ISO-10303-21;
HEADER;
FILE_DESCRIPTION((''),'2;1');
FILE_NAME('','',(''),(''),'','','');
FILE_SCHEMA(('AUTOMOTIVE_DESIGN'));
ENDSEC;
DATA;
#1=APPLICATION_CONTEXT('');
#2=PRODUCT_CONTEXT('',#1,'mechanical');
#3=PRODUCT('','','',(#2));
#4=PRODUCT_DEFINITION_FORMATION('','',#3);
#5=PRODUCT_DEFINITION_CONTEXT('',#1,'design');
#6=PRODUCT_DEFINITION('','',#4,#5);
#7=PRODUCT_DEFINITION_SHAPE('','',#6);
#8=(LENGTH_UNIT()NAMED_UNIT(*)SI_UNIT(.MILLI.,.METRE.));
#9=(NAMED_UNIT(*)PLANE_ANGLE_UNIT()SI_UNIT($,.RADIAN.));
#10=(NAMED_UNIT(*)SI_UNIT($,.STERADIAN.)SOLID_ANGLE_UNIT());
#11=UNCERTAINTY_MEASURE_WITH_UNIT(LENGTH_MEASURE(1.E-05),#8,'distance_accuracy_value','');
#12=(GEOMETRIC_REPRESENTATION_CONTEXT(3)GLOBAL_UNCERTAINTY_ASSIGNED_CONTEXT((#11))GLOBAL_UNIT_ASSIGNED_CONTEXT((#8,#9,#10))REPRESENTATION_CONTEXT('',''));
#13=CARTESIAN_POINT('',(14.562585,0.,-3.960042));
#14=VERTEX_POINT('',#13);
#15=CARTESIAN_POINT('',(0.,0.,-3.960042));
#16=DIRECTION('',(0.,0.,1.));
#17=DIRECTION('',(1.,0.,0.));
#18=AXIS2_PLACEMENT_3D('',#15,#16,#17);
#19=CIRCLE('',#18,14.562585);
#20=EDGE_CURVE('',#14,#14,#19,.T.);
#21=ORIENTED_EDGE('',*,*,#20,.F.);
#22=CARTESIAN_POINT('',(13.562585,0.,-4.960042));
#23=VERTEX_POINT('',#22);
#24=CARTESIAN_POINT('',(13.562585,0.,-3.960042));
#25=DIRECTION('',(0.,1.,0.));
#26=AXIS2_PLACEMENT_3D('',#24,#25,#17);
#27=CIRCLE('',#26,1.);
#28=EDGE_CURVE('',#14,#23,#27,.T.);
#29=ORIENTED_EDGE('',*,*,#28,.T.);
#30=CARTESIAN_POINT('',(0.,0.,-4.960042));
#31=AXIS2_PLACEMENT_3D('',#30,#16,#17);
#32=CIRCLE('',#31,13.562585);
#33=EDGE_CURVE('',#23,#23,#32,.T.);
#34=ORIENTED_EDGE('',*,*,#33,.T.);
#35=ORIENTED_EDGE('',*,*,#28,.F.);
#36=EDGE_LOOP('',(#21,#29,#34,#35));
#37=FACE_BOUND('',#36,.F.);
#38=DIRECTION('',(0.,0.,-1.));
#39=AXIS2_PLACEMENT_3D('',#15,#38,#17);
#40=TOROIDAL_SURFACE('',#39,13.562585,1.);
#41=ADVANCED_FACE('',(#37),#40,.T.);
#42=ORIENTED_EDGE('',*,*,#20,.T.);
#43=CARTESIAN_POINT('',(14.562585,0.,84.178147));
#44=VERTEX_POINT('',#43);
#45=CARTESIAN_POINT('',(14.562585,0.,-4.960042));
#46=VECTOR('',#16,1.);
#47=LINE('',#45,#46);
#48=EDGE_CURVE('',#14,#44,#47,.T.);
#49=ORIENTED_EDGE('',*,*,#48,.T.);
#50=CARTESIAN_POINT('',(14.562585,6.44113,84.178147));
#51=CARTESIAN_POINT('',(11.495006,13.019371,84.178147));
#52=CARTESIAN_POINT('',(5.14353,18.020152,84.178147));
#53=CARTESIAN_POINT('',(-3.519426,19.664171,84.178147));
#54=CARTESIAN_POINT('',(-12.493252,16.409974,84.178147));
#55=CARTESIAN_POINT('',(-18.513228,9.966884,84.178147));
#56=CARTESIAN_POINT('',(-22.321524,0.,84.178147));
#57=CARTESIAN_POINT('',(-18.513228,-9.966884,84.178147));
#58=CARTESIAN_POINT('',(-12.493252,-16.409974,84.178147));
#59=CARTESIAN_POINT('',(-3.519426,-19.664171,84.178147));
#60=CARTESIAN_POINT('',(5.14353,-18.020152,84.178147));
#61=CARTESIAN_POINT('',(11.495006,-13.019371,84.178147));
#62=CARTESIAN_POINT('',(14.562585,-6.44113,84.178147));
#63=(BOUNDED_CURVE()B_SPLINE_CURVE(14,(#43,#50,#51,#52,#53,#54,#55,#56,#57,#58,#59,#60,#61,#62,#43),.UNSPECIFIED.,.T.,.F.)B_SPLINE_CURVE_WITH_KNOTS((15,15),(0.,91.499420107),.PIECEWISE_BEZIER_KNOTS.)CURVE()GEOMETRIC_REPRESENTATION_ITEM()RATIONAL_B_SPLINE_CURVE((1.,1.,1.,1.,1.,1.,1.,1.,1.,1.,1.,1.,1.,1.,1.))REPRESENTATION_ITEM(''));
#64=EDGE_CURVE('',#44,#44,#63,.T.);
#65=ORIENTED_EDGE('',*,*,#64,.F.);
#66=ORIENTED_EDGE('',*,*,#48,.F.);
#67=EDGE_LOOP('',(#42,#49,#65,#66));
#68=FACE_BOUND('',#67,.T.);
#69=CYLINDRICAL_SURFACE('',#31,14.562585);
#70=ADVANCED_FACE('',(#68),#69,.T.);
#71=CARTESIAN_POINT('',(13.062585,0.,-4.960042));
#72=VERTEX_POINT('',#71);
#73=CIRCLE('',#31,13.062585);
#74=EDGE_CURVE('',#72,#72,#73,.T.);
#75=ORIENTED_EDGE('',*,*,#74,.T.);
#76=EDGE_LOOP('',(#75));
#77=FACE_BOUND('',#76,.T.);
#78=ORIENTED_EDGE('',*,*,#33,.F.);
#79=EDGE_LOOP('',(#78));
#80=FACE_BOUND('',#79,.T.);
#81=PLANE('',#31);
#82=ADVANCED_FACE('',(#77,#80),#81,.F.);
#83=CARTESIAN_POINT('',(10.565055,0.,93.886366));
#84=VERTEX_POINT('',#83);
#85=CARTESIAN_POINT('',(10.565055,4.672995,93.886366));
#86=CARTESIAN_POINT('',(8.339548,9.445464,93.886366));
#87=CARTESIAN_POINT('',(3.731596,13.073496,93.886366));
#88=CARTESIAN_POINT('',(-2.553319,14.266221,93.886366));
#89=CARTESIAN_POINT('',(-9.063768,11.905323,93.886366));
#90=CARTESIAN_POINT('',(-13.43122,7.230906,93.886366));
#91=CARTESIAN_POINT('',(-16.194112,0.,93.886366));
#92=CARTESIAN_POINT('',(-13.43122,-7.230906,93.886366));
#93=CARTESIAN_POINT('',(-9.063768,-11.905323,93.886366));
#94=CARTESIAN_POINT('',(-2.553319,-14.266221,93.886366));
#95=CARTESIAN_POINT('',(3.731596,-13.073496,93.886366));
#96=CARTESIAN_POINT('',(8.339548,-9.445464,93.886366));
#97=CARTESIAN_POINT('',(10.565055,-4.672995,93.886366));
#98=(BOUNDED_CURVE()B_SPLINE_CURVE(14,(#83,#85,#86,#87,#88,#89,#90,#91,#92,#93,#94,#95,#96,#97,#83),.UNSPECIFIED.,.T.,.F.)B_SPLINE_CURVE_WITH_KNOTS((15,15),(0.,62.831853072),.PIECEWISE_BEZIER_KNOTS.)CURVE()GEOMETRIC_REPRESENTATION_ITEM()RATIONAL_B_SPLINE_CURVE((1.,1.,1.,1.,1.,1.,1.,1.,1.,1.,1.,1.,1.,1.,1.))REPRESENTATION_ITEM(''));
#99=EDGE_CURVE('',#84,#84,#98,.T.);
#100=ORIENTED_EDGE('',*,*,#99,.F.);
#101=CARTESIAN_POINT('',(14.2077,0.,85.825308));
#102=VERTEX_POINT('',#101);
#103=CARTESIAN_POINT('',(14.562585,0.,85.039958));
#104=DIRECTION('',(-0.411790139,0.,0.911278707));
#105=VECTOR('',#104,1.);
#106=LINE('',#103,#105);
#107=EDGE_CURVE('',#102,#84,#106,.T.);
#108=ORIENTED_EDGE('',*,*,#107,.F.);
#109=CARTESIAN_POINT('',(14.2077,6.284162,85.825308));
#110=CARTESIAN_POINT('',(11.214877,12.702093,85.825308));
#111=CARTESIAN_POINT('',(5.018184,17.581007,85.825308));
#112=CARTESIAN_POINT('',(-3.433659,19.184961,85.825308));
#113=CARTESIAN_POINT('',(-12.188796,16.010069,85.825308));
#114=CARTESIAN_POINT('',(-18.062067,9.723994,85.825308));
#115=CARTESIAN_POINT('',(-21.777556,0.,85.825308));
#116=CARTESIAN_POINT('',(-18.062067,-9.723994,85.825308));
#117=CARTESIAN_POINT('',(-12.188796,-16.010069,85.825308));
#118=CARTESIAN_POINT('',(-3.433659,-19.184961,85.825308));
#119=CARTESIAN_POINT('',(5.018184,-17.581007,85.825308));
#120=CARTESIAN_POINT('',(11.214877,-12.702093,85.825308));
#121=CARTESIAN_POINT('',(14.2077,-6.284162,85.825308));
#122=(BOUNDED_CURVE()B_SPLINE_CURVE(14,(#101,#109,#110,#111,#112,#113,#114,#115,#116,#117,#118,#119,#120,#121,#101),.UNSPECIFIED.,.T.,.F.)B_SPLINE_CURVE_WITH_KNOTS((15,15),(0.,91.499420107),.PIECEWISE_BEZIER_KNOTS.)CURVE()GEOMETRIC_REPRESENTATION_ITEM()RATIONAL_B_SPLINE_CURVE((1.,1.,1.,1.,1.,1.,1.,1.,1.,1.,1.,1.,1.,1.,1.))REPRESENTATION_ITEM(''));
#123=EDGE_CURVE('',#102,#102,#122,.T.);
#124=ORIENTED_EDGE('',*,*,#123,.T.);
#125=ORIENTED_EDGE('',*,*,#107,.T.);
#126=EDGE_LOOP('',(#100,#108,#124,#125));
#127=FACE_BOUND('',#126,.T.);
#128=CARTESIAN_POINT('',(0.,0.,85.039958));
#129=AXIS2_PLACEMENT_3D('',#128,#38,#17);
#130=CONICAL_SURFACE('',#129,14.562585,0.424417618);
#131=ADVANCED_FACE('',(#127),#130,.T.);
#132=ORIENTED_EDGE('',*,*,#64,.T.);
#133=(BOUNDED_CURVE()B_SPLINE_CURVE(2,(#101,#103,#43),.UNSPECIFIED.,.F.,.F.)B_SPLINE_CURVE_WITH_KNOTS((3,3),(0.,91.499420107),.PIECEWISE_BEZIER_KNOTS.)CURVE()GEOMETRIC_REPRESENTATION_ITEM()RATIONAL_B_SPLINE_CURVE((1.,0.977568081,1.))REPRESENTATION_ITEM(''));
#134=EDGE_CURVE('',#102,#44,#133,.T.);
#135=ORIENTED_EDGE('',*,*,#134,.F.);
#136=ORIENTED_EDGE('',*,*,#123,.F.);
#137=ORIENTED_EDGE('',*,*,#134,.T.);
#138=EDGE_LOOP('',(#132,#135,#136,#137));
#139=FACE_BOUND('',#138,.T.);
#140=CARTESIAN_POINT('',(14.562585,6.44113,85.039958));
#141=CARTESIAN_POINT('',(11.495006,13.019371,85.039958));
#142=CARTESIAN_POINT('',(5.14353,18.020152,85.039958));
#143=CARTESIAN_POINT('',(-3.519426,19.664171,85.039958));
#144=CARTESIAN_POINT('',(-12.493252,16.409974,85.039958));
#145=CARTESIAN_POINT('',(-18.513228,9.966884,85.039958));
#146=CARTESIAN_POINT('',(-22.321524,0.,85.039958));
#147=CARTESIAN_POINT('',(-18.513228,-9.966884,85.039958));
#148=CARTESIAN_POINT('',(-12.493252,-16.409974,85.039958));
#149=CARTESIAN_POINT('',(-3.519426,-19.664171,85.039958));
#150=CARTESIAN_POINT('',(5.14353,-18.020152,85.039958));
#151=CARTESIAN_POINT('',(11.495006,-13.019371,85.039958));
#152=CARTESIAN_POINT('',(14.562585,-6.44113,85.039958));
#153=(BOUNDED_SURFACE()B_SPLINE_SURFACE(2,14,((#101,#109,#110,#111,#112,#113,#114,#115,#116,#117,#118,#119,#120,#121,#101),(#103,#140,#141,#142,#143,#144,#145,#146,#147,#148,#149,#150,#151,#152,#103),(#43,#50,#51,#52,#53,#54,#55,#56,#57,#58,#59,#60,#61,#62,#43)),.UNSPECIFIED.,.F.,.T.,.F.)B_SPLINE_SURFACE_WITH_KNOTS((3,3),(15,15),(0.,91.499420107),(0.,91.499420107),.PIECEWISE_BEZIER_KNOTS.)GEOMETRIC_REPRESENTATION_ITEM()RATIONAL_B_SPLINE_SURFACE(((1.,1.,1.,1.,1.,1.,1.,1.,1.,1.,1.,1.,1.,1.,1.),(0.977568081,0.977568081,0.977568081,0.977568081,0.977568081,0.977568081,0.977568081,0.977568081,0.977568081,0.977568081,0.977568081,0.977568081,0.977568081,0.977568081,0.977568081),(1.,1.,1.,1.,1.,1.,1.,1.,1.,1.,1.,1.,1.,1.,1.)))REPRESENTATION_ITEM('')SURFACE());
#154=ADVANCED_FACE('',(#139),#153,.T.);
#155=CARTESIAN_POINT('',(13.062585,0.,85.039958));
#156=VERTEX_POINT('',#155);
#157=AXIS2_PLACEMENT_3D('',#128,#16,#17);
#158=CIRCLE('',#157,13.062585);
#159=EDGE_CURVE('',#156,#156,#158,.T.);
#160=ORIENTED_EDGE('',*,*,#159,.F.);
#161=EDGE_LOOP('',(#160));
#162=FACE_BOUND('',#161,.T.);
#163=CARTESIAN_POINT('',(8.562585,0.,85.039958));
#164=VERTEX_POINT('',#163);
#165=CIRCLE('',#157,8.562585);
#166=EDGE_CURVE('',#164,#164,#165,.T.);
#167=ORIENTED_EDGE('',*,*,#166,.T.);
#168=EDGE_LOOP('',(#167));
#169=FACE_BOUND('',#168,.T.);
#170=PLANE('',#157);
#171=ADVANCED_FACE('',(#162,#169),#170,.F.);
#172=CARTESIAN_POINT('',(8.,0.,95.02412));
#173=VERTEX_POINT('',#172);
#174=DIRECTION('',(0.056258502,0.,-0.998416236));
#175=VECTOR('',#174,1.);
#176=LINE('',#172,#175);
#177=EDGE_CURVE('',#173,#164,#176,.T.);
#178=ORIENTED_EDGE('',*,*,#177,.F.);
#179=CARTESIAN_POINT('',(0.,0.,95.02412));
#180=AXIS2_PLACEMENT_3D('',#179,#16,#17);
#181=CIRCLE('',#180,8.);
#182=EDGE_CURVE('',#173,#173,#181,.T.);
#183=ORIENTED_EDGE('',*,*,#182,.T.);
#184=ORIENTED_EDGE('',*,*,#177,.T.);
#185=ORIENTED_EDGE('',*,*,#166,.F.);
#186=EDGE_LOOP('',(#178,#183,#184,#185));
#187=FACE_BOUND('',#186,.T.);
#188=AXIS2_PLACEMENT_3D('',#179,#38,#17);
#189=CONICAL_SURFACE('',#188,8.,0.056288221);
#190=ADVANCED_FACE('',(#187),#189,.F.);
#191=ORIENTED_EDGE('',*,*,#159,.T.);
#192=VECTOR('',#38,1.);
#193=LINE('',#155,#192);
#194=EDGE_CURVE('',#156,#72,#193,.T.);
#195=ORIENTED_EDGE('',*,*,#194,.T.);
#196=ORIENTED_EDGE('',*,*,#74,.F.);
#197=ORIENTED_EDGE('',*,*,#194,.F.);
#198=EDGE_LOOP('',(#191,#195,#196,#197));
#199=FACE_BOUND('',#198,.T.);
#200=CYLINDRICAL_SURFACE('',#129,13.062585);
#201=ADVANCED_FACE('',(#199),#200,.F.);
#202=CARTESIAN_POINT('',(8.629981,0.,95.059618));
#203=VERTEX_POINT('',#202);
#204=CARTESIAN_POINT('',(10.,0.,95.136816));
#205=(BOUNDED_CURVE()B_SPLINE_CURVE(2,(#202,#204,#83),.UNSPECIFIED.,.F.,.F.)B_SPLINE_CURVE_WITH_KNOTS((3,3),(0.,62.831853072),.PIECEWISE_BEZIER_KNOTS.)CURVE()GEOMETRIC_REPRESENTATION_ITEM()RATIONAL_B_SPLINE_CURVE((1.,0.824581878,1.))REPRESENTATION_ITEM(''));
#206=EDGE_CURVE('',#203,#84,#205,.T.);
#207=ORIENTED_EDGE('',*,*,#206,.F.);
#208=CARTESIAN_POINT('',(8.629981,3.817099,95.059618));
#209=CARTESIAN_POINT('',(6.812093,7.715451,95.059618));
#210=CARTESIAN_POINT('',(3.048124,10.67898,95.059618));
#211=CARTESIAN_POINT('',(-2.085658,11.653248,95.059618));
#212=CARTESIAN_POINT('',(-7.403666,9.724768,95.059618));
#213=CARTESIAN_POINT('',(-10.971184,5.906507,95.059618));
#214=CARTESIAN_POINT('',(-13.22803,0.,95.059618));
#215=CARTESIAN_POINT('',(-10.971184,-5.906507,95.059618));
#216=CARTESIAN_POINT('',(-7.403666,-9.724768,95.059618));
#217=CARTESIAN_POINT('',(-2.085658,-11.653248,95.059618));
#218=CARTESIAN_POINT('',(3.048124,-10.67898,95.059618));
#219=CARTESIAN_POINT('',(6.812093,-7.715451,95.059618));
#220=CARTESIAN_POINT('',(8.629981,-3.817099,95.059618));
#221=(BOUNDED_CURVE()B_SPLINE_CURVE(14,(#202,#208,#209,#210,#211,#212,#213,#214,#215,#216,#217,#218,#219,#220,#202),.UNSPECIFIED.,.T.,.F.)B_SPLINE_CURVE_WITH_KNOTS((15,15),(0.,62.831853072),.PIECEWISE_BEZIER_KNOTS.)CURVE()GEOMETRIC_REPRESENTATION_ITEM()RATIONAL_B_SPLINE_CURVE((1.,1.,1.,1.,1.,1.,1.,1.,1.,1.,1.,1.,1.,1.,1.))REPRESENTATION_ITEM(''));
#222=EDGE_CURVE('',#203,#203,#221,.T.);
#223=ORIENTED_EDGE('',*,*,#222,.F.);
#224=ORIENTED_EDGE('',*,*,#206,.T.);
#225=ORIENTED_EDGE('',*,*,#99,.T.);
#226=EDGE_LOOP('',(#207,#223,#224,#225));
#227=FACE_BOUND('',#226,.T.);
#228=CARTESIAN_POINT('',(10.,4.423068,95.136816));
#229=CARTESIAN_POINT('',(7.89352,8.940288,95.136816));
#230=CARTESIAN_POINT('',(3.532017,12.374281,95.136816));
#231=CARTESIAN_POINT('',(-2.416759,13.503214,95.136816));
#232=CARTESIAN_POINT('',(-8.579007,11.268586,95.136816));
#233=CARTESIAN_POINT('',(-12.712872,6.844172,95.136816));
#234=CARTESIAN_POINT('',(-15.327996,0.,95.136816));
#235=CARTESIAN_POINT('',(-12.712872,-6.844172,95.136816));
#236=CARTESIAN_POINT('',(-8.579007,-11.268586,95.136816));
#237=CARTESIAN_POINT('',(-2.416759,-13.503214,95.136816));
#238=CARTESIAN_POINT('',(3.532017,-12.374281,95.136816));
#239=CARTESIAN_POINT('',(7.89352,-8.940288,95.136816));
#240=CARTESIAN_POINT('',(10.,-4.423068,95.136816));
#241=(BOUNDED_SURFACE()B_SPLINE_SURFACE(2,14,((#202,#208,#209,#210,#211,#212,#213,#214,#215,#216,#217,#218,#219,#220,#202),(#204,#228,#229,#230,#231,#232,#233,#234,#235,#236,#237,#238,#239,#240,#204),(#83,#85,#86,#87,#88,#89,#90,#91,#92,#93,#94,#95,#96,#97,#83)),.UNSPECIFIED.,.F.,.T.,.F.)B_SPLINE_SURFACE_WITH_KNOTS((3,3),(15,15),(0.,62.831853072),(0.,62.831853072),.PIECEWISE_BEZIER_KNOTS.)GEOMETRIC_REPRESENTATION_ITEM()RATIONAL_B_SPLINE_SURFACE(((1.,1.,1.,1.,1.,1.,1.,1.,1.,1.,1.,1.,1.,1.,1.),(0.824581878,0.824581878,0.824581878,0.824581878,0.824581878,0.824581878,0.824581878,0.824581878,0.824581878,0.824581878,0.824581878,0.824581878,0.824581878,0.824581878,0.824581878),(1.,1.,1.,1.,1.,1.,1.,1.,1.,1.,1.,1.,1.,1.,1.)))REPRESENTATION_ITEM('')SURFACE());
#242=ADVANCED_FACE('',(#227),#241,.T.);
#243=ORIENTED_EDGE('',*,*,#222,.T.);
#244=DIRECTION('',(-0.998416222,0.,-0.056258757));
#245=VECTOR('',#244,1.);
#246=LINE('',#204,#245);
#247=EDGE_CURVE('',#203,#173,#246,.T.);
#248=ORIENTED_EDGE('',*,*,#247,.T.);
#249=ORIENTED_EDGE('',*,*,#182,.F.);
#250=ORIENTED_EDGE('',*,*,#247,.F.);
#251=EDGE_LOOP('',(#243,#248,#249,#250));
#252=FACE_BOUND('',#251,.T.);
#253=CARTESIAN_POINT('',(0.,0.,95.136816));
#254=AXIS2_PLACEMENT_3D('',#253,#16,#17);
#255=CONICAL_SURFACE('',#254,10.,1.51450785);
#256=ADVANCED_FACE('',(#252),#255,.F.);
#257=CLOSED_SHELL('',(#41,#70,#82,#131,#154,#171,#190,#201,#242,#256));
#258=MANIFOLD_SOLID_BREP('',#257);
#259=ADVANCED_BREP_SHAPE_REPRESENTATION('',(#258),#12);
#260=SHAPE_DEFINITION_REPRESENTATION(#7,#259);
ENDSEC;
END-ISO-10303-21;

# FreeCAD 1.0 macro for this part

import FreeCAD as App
import Part
import Sketcher


def edges_at(feature, points):
    """Names of the edges that pass closest to the given points."""
    edges = feature.Shape.Edges
    near = lambda p: min(range(len(edges)), key=lambda i: edges[i].distToShape(Part.Vertex(*p))[0])
    return sorted({f"Edge{near(p) + 1}" for p in points})

doc = App.newDocument("Part")
body = doc.addObject("PartDesign::Body", "Body")

# Sketch on XZ plane
sketch1 = body.newObject("Sketcher::SketchObject", "Sketch")
sketch1.AttachmentSupport = (doc.getObject("XZ_Plane"), [""])
sketch1.MapMode = "FlatFace"
sketch1.addGeometry([
    Part.LineSegment(App.Vector(10, 95.136816, 0), App.Vector(8, 95.02412, 0)),  # 0
    Part.LineSegment(App.Vector(8, 95.02412, 0), App.Vector(8.562585, 85.039958, 0)),  # 1
    Part.LineSegment(App.Vector(8.562585, 85.039958, 0), App.Vector(13.062585, 85.039958, 0)),  # 2
    Part.LineSegment(App.Vector(13.062585, 85.039958, 0), App.Vector(13.062585, -4.960042, 0)),  # 3
    Part.LineSegment(App.Vector(13.062585, -4.960042, 0), App.Vector(14.562585, -4.960042, 0)),  # 4
    Part.LineSegment(App.Vector(14.562585, -4.960042, 0), App.Vector(14.562585, 85.039958, 0)),  # 5
    Part.LineSegment(App.Vector(14.562585, 85.039958, 0), App.Vector(10, 95.136816, 0)),  # 6
], False)
sketch1.addConstraint([
    Sketcher.Constraint("Coincident", 0, 2, 1, 1),
    Sketcher.Constraint("Coincident", 1, 2, 2, 1),
    Sketcher.Constraint("Coincident", 2, 2, 3, 1),
    Sketcher.Constraint("Coincident", 3, 2, 4, 1),
    Sketcher.Constraint("Coincident", 4, 2, 5, 1),
    Sketcher.Constraint("Coincident", 5, 2, 6, 1),
    Sketcher.Constraint("Coincident", 6, 2, 0, 1),
    Sketcher.Constraint("Horizontal", 2),
    Sketcher.Constraint("Vertical", 3),
    Sketcher.Constraint("Horizontal", 4),
    Sketcher.Constraint("Vertical", 5),
    Sketcher.Constraint("Perpendicular", 0, 1),
    Sketcher.Constraint("Horizontal", 2, 2, 5, 2),
    Sketcher.Constraint("DistanceY", 3, 2, 3, 1, 90.0),
    Sketcher.Constraint("Distance", 1, 10.0),
    Sketcher.Constraint("DistanceX", 2, 1, 2, 2, 4.5),
    Sketcher.Constraint("DistanceX", 4, 1, 4, 2, 1.5),
    Sketcher.Constraint("DistanceX", -1, 1, 0, 2, 8.0),
    Sketcher.Constraint("DistanceX", -1, 1, 6, 2, 10.0),
    Sketcher.Constraint("Distance", 6, 11.079879),
    Sketcher.Constraint("DistanceY", -1, 1, 0, 2, 95.02412),
])
revolution = body.newObject("PartDesign::Revolution", "Revolution")
revolution.Profile = sketch1
revolution.ReferenceAxis = (sketch1, ["V_Axis"])
revolution.Angle = 360
doc.recompute()

fillet = body.newObject("PartDesign::Fillet", "Fillet")
fillet.Base = (revolution, edges_at(revolution, [(-10, 0, 95.137)]))
fillet.Radius = 2
doc.recompute()

fillet2 = body.newObject("PartDesign::Fillet", "Fillet001")
fillet2.Base = (fillet, edges_at(fillet, [(-14.563, 0, 85.04)]))
fillet2.Radius = 4
doc.recompute()

fillet3 = body.newObject("PartDesign::Fillet", "Fillet002")
fillet3.Base = (fillet2, edges_at(fillet2, [(-14.563, 0, -4.96)]))
fillet3.Radius = 1

doc.recompute()
